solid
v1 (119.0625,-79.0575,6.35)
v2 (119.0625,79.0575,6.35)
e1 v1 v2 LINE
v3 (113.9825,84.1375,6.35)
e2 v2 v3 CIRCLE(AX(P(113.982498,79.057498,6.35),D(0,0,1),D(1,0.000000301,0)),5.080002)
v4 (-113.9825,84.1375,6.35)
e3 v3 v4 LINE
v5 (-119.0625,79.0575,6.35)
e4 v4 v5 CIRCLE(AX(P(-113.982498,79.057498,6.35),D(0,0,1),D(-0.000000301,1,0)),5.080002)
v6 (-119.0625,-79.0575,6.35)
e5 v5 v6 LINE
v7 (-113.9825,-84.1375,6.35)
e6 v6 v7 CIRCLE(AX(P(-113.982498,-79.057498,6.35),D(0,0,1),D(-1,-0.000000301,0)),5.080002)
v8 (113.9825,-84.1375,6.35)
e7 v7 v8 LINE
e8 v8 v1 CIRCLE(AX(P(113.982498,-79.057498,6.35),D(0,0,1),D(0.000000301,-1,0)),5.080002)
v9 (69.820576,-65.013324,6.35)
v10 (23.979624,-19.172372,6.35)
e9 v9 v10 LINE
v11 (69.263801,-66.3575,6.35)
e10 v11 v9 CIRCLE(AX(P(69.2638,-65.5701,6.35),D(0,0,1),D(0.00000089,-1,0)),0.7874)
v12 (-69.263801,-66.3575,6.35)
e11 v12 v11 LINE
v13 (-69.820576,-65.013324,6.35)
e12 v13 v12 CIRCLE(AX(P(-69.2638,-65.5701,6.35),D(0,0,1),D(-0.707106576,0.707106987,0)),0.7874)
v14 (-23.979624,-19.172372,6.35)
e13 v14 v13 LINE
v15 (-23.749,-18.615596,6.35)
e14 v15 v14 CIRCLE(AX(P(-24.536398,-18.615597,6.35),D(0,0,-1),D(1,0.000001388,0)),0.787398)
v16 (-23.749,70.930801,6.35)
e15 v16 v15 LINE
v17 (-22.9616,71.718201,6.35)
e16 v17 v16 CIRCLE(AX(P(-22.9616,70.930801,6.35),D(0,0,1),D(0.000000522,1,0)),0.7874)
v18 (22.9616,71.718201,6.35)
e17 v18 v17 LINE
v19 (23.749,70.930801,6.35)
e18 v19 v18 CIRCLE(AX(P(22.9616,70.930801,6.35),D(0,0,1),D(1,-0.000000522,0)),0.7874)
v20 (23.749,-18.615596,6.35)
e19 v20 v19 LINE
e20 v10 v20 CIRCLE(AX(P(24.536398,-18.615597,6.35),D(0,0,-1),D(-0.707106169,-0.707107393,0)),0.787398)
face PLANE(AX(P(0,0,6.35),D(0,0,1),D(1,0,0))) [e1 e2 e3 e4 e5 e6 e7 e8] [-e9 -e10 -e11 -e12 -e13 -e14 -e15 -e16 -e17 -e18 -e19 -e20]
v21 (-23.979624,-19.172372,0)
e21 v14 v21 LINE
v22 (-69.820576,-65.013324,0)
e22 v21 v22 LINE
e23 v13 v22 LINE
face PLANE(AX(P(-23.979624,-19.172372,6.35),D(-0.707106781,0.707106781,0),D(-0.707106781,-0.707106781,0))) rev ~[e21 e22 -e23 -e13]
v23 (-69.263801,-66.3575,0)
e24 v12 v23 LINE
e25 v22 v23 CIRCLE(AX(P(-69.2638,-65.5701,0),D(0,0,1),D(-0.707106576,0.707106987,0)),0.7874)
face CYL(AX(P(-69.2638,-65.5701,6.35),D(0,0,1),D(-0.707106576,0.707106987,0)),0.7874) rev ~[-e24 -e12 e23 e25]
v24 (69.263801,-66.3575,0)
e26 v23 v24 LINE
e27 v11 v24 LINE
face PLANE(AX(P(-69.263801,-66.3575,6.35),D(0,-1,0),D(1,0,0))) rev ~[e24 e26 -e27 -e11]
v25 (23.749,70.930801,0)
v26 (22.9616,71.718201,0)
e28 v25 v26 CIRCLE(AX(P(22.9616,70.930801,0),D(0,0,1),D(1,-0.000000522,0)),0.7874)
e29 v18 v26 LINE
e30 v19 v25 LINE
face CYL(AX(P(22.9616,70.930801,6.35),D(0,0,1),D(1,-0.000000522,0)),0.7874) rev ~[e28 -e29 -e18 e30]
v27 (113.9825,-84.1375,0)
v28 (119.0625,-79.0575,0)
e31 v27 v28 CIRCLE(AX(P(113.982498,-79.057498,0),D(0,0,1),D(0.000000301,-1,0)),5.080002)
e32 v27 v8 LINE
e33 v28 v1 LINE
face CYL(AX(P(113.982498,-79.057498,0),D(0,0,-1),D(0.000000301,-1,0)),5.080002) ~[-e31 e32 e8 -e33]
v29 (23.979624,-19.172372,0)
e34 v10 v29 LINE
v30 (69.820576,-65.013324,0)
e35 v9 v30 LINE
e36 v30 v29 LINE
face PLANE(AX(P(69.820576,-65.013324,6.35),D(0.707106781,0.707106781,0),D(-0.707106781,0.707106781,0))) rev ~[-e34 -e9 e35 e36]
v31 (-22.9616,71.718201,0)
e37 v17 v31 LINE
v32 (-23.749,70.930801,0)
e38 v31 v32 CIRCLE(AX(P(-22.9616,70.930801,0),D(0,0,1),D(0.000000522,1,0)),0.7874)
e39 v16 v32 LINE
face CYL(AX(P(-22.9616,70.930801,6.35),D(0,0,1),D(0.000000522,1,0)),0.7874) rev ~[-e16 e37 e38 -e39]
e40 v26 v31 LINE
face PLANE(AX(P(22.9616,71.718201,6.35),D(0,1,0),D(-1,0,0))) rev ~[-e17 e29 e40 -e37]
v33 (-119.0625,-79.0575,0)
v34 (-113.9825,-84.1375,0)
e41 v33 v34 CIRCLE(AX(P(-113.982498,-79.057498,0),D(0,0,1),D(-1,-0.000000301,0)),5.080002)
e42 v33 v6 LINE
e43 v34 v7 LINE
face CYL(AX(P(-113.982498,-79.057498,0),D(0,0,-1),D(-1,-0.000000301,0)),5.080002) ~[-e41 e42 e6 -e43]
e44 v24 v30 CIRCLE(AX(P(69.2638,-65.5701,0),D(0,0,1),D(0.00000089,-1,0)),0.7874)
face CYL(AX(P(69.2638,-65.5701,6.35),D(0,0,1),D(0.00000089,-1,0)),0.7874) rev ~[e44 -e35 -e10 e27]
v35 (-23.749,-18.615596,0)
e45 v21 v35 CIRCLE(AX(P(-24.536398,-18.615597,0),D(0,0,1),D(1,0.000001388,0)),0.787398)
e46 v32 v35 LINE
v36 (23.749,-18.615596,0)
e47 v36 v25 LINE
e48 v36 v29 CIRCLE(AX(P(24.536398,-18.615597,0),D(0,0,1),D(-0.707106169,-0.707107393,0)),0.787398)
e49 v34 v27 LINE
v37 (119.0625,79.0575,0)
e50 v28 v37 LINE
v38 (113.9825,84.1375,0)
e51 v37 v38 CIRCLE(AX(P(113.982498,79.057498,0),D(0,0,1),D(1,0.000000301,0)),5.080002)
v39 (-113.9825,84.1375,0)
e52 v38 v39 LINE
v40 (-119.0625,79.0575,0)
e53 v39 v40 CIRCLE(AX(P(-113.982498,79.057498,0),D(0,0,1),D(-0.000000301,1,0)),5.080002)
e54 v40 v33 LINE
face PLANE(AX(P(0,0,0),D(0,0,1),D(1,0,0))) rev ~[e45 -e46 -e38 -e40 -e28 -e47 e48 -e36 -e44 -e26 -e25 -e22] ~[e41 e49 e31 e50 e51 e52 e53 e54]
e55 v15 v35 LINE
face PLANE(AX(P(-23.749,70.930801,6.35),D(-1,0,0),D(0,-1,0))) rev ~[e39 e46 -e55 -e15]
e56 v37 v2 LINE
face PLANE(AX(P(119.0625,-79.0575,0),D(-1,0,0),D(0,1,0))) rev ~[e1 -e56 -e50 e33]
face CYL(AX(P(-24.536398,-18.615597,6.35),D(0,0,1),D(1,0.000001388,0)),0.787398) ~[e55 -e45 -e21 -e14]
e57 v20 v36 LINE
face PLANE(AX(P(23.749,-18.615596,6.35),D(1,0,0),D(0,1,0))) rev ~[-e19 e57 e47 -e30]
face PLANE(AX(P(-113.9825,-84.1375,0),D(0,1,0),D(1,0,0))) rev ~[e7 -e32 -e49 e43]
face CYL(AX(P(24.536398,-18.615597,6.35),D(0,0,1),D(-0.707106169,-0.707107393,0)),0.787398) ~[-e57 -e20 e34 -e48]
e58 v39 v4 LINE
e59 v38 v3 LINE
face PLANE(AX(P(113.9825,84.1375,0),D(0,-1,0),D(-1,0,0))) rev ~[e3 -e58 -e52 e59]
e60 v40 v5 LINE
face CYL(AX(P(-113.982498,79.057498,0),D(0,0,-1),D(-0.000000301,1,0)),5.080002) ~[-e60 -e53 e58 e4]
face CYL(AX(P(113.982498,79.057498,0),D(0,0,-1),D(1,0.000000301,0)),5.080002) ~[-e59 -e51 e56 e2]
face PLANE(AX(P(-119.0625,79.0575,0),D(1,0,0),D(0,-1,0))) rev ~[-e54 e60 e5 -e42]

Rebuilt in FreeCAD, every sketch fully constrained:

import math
import FreeCAD as App
import Part
import Sketcher

V = App.Vector
Q = App.Units.Quantity


def add_polygon(sketch, points):
    """Adds a closed chain of lines whose ends are joined by coincident constraints."""
    first, n = sketch.GeometryCount, len(points)
    for a, b in zip(points, points[1:] + points[:1]):
        sketch.addGeometry(Part.LineSegment(App.Vector(*a, 0), App.Vector(*b, 0)), False)
    for i in range(n):
        sketch.addConstraint(Sketcher.Constraint("Coincident", first + i, 2, first + (i + 1) % n, 1))

doc = App.newDocument("Part")
params = doc.addObject("Spreadsheet::Sheet", "Params")
for row, (alias, value) in enumerate([
    ("sketch1_radius", "0.2000001 in"),
    ("sketch1_width", "8.975 in"),
    ("sketch1_height", "6.225 in"),
    ("pad1_length", "0.25 in"),
    ("sketch2_width", "1.77 in"),
    ("sketch2_height", "3.54 in"),
    ("sketch2_length", "2.54 in"),
    ("pocket1_length", "1 in"),
    ("sketch3_radius", "0.031 in"),
    ("sketch3_width", "1.808 in"),
    ("pocket2_length", "1 in"),
], start=1):
    params.set(f"A{row}", alias)
    params.set(f"B{row}", "=" + value)
    params.setAlias(f"B{row}", alias)

body = doc.addObject("PartDesign::Body", "Body")

sketch1 = body.newObject("Sketcher::SketchObject", "Sketch")
sketch1.AttachmentSupport = (doc.getObject("XY_Plane"), [""])
sketch1.MapMode = "FlatFace"
sketch1.addGeometry([
    Part.LineSegment(V(114, 84, 0), V(-114, 84, 0)),
    Part.ArcOfCircle(Part.Circle(V(-114, 79, 0), V(0, 0, 1), 5), math.radians(90), math.radians(180)),
    Part.LineSegment(V(-119, 79, 0), V(-119, -79, 0)),
    Part.ArcOfCircle(Part.Circle(V(-114, -79, 0), V(0, 0, 1), 5), math.radians(-180), math.radians(-90)),
    Part.LineSegment(V(-114, -84, 0), V(114, -84, 0)),
    Part.ArcOfCircle(Part.Circle(V(114, -79, 0), V(0, 0, 1), 5), math.radians(-90), math.radians(0)),
    Part.LineSegment(V(119, -79, 0), V(119, 79, 0)),
    Part.ArcOfCircle(Part.Circle(V(114, 79, 0), V(0, 0, 1), 5), math.radians(0), math.radians(90)),
], False)
sketch1.addConstraint([
    Sketcher.Constraint("Tangent", 0, 2, 1, 1),
    Sketcher.Constraint("Tangent", 1, 2, 2, 1),
    Sketcher.Constraint("Tangent", 2, 2, 3, 1),
    Sketcher.Constraint("Tangent", 3, 2, 4, 1),
    Sketcher.Constraint("Tangent", 4, 2, 5, 1),
    Sketcher.Constraint("Tangent", 5, 2, 6, 1),
    Sketcher.Constraint("Tangent", 6, 2, 7, 1),
    Sketcher.Constraint("Tangent", 7, 2, 0, 1),
    Sketcher.Constraint("Horizontal", 0),
    Sketcher.Constraint("Vertical", 2),
    Sketcher.Constraint("Horizontal", 4),
    Sketcher.Constraint("Vertical", 6),
    Sketcher.Constraint("Equal", 1, 3),
    Sketcher.Constraint("Equal", 3, 5),
    Sketcher.Constraint("Equal", 5, 7),
    Sketcher.Constraint("Symmetric", 1, 3, 5, 3, -1, 1),
    Sketcher.Constraint("Radius", 1, Q("0.2000001 in")),
    Sketcher.Constraint("DistanceX", 0, 2, 0, 1, Q("8.975 in")),
    Sketcher.Constraint("DistanceY", 2, 2, 2, 1, Q("6.225 in")),
])
sketch1.setExpression("Constraints[16]", "Params.sketch1_radius")
sketch1.setExpression("Constraints[17]", "Params.sketch1_width")
sketch1.setExpression("Constraints[18]", "Params.sketch1_height")
pad1 = body.newObject("PartDesign::Pad", "Pad")
pad1.Profile = sketch1
pad1.setExpression("Length", "Params.pad1_length")

sketch2 = body.newObject("Sketcher::SketchObject", "Sketch001")
sketch2.AttachmentSupport = (doc.getObject("XY_Plane"), [""])
sketch2.MapMode = "FlatFace"
sketch2.AttachmentOffset = App.Placement(V(0, 0, 0.25 * 25.4), App.Rotation())
add_polygon(sketch2, [(22, 70), (-22, 70), (-22, -19), (-68, -65), (68, -65), (22, -19)])
sketch2.addConstraint([
    Sketcher.Constraint("Horizontal", 0),
    Sketcher.Constraint("Vertical", 1),
    Sketcher.Constraint("Horizontal", 3),
    Sketcher.Constraint("Vertical", 5),
    Sketcher.Constraint("Symmetric", 1, 2, 4, 2, -2),
    Sketcher.Constraint("Perpendicular", 2, 4),
    Sketcher.Constraint("Equal", 2, 4),
    Sketcher.Constraint("DistanceX", 0, 2, 0, 1, Q("1.77 in")),
    Sketcher.Constraint("DistanceY", 1, 2, 1, 1, Q("3.54 in")),
    Sketcher.Constraint("Distance", 2, Q("2.54 in")),
    Sketcher.Constraint("DistanceY", 2, 2, -1, 1, Q("2.5625 in")),
])
sketch2.setExpression("Constraints[13]", "Params.sketch2_width")
sketch2.setExpression("Constraints[14]", "Params.sketch2_height")
sketch2.setExpression("Constraints[15]", "Params.sketch2_length")
pocket1 = body.newObject("PartDesign::Pocket", "Pocket")
pocket1.Profile = sketch2
pocket1.setExpression("Length", "Params.pocket1_length")

sketch3 = body.newObject("Sketcher::SketchObject", "Sketch002")
sketch3.AttachmentSupport = (doc.getObject("XY_Plane"), [""])
sketch3.MapMode = "FlatFace"
sketch3.AttachmentOffset = App.Placement(V(0, 0, 0.25 * 25.4), App.Rotation())
sketch3.addGeometry([
    Part.ArcOfCircle(Part.Circle(V(-23, 70.9, 0), V(0, 0, 1), 0.8), math.radians(90), math.radians(180)),
    Part.LineSegment(V(-23.7, 70.9, 0), V(-23.7, -18.6, 0)),
    Part.ArcOfCircle(Part.Circle(V(-24.5, -18.6, 0), V(0, 0, 1), 0.8), math.radians(-45), math.radians(0)),
    Part.LineSegment(V(-24, -19.2, 0), V(-69.8, -65, 0)),
    Part.ArcOfCircle(Part.Circle(V(-69.3, -65.6, 0), V(0, 0, 1), 0.8), math.radians(135), math.radians(270)),
    Part.LineSegment(V(-69.3, -66.4, 0), V(69.3, -66.4, 0)),
    Part.ArcOfCircle(Part.Circle(V(69.3, -65.6, 0), V(0, 0, 1), 0.8), math.radians(-90), math.radians(45)),
    Part.LineSegment(V(69.8, -65, 0), V(24, -19.2, 0)),
    Part.ArcOfCircle(Part.Circle(V(24.5, -18.6, 0), V(0, 0, 1), 0.8), math.radians(180), math.radians(225)),
    Part.LineSegment(V(23.7, -18.6, 0), V(23.7, 70.9, 0)),
    Part.ArcOfCircle(Part.Circle(V(23, 70.9, 0), V(0, 0, 1), 0.8), math.radians(0), math.radians(90)),
    Part.LineSegment(V(23, 71.7, 0), V(-23, 71.7, 0)),
], False)
sketch3.addConstraint([
    Sketcher.Constraint("Tangent", 0, 2, 1, 1),
    Sketcher.Constraint("Tangent", 1, 2, 2, 2),
    Sketcher.Constraint("Tangent", 2, 1, 3, 1),
    Sketcher.Constraint("Tangent", 3, 2, 4, 1),
    Sketcher.Constraint("Tangent", 4, 2, 5, 1),
    Sketcher.Constraint("Tangent", 5, 2, 6, 1),
    Sketcher.Constraint("Tangent", 6, 2, 7, 1),
    Sketcher.Constraint("Tangent", 7, 2, 8, 2),
    Sketcher.Constraint("Tangent", 8, 1, 9, 1),
    Sketcher.Constraint("Tangent", 9, 2, 10, 1),
    Sketcher.Constraint("Tangent", 10, 2, 11, 1),
    Sketcher.Constraint("Tangent", 11, 2, 0, 1),
    Sketcher.Constraint("Vertical", 1),
    Sketcher.Constraint("Horizontal", 5),
    Sketcher.Constraint("Vertical", 9),
    Sketcher.Constraint("Horizontal", 11),
    Sketcher.Constraint("Equal", 0, 2),
    Sketcher.Constraint("Equal", 0, 4),
    Sketcher.Constraint("Equal", 4, 6),
    Sketcher.Constraint("Equal", 2, 8),
    Sketcher.Constraint("Equal", 8, 10),
    Sketcher.Constraint("Symmetric", 2, 3, 8, 3, -2),
    Sketcher.Constraint("Perpendicular", 3, 7),
    Sketcher.Constraint("Horizontal", 3, 2, 6, 2),
    Sketcher.Constraint("Radius", 0, Q("0.031 in")),
    Sketcher.Constraint("DistanceX", 11, 2, 11, 1, Q("1.808 in")),
    Sketcher.Constraint("DistanceX", 5, 1, 5, 2, Q("138.527602 mm")),
    Sketcher.Constraint("DistanceY", 4, 3, -1, 1, Q("2.5815 in")),
    Sketcher.Constraint("DistanceY", -1, 1, 0, 3, Q("70.930801 mm")),
])
sketch3.setExpression("Constraints[24]", "Params.sketch3_radius")
sketch3.setExpression("Constraints[25]", "Params.sketch3_width")
pocket2 = body.newObject("PartDesign::Pocket", "Pocket001")
pocket2.Profile = sketch3
pocket2.setExpression("Length", "Params.pocket2_length")

doc.recompute()
